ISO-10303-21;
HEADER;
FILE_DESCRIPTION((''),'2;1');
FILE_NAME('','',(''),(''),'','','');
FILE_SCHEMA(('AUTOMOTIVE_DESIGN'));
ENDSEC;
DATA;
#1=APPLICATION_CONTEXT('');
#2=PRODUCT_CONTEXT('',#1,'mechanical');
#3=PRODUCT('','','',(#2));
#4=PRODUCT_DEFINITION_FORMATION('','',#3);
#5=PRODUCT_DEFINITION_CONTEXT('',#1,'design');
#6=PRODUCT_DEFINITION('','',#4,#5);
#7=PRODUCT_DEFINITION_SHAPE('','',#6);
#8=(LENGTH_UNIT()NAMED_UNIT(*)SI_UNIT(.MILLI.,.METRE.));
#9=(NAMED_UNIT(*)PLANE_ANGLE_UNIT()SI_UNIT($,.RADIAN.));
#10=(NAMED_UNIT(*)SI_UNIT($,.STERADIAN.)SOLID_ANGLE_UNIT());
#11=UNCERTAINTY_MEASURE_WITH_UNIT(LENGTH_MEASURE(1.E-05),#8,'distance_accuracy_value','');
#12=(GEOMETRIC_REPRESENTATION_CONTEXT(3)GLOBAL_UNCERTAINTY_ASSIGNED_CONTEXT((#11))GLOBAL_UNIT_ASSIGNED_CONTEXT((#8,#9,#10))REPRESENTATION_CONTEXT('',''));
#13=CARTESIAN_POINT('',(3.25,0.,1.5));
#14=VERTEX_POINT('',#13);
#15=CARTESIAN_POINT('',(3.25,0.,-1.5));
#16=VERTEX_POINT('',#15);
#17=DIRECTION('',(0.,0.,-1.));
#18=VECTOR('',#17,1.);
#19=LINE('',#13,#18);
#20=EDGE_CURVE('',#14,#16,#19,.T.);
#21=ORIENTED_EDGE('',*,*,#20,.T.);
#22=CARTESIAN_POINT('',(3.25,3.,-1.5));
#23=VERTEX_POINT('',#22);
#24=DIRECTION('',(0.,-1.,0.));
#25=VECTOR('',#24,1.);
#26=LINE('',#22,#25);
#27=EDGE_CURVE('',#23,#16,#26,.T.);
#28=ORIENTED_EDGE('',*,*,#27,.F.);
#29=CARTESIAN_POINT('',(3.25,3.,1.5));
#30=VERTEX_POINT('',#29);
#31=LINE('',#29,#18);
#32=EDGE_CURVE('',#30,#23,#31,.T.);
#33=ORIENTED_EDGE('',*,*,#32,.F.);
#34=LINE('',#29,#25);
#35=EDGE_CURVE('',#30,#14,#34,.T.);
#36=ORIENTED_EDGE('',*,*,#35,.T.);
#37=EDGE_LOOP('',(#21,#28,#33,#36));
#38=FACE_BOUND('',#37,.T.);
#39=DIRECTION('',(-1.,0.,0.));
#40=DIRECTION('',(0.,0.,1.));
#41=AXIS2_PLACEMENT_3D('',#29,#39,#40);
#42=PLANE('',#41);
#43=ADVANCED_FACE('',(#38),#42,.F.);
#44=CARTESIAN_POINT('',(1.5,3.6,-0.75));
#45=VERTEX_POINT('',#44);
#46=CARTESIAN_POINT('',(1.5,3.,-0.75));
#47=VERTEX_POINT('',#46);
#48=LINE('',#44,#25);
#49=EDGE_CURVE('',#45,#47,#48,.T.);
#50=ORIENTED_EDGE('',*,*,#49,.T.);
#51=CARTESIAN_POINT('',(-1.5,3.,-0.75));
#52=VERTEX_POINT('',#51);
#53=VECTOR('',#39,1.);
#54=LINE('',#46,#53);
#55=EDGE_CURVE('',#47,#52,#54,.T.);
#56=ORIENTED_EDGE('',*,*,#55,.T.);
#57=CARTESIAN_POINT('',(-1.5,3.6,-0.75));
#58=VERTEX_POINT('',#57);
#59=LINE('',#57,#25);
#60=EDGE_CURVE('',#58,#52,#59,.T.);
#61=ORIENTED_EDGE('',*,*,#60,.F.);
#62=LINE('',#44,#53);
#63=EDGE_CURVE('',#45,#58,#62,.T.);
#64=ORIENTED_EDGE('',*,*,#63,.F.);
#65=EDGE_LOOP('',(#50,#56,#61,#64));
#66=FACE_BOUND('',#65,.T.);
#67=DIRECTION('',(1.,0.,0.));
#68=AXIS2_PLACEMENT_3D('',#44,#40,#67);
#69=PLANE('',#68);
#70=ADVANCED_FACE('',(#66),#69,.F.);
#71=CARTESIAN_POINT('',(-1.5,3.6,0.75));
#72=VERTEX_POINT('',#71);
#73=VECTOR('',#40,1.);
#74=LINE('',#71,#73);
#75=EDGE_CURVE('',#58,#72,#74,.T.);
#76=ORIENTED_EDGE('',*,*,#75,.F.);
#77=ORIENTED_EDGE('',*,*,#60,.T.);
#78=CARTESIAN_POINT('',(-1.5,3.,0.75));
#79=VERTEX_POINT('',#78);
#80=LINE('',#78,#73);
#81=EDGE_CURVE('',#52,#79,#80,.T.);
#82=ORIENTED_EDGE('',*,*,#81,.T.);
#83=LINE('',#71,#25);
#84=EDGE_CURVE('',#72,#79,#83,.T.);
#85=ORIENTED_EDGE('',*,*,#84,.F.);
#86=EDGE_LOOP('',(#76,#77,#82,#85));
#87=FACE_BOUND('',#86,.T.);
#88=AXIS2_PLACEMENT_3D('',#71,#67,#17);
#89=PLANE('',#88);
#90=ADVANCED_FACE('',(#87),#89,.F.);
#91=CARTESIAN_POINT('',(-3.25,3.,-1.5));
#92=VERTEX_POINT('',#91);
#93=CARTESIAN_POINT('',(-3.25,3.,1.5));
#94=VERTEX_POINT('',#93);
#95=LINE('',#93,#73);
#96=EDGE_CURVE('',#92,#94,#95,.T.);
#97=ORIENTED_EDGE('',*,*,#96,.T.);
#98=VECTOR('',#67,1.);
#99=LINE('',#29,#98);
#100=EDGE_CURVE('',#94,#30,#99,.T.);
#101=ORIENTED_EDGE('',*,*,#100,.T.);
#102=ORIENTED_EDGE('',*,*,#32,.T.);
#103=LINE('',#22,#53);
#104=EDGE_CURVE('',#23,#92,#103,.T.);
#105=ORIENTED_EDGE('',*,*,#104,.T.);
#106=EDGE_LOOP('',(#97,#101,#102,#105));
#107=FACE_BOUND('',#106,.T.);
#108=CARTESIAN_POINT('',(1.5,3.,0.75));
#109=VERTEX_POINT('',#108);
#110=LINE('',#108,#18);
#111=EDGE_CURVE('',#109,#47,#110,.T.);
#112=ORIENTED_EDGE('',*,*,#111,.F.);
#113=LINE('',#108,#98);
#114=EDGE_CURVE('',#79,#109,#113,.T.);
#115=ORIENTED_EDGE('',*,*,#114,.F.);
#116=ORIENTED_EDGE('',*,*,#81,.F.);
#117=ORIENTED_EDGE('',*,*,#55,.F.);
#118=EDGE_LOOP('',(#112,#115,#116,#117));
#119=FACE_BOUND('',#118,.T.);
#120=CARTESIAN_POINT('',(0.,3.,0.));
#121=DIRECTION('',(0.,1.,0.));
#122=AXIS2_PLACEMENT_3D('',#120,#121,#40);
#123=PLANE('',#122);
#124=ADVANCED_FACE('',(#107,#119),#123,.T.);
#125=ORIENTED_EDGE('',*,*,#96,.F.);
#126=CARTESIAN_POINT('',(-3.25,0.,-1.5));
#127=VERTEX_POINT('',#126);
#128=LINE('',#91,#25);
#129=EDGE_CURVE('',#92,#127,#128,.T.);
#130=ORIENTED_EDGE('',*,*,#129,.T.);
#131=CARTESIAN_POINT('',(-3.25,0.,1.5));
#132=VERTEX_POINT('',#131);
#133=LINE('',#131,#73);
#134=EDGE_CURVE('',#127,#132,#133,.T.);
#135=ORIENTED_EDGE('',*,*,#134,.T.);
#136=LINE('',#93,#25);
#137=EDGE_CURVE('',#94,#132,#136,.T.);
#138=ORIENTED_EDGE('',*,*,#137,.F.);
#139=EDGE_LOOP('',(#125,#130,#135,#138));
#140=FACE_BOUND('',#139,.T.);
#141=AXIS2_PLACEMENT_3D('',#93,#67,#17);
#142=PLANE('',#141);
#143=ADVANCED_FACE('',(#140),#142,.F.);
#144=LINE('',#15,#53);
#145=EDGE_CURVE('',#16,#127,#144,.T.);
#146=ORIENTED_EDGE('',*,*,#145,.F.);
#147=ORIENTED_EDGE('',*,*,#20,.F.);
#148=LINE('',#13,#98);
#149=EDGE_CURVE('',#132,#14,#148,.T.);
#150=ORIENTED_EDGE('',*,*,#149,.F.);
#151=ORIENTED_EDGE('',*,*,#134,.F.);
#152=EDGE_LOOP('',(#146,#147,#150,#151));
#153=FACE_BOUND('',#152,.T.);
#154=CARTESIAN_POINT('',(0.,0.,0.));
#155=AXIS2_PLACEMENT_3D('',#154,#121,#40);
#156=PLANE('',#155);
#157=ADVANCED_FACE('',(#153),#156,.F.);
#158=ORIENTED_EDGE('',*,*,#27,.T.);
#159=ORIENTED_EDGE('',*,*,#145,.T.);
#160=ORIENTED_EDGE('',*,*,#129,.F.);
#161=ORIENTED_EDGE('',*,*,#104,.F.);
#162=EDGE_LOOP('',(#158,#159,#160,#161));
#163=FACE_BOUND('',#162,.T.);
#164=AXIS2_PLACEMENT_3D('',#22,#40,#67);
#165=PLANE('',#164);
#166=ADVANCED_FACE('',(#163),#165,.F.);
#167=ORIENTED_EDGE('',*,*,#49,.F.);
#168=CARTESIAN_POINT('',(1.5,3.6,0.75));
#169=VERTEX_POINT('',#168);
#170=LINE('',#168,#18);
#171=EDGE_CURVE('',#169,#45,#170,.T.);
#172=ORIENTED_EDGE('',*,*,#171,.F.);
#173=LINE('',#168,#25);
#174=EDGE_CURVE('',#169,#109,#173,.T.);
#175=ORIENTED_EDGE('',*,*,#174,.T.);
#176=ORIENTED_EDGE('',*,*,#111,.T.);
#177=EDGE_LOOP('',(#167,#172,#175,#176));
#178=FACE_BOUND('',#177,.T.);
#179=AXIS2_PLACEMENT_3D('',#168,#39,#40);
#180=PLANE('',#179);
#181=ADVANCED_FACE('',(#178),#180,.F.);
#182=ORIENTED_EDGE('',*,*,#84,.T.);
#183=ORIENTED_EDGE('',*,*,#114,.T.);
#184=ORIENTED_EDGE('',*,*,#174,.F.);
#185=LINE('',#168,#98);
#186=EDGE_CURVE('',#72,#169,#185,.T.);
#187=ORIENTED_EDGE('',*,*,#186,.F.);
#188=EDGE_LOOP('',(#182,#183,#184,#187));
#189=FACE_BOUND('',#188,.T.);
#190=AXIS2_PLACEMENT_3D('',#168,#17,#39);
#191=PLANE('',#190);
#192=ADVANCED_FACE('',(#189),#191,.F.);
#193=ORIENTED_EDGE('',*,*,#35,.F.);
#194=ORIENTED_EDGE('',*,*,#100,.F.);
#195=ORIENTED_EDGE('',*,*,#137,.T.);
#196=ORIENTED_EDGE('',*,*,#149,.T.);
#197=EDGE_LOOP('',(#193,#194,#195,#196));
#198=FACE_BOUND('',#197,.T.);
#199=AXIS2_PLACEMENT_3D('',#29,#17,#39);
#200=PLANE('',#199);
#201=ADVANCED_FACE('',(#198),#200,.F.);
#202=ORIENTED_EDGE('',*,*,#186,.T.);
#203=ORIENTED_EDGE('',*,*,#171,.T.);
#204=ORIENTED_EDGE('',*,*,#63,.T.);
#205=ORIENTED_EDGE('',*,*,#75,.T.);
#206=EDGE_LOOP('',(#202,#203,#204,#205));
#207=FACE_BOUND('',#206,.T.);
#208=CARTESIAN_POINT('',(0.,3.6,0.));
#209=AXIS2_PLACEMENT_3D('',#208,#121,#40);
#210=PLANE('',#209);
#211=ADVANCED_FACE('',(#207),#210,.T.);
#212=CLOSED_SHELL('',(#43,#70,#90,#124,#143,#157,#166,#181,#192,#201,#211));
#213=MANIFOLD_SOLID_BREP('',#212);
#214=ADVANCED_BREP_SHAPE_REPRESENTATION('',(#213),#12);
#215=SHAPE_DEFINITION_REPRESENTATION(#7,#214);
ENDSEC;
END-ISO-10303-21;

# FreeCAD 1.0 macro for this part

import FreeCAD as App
import Part
import Sketcher

V = App.Vector
Q = App.Units.Quantity


def add_polygon(sketch, points):
    """Adds a closed chain of lines whose ends are joined by coincident constraints."""
    first, n = sketch.GeometryCount, len(points)
    for a, b in zip(points, points[1:] + points[:1]):
        sketch.addGeometry(Part.LineSegment(App.Vector(*a, 0), App.Vector(*b, 0)), False)
    for i in range(n):
        sketch.addConstraint(Sketcher.Constraint("Coincident", first + i, 2, first + (i + 1) % n, 1))

doc = App.newDocument("Part")
params = doc.addObject("Spreadsheet::Sheet", "Params")
for row, (alias, value) in enumerate([
    ("sketch1_height", "3 mm"),
    ("sketch1_width", "6.5 mm"),
    ("pad1_length", "3 mm"),
    ("sketch2_width", "3 mm"),
    ("sketch2_height", "1.5 mm"),
    ("pad2_length", "0.6 mm"),
], start=1):
    params.set(f"A{row}", alias)
    params.set(f"B{row}", "=" + value)
    params.setAlias(f"B{row}", alias)

body = doc.addObject("PartDesign::Body", "Body")

sketch1 = body.newObject("Sketcher::SketchObject", "Sketch")
sketch1.AttachmentSupport = (doc.getObject("XZ_Plane"), [""])
sketch1.MapMode = "FlatFace"
add_polygon(sketch1, [(-3.2, -1.5), (-3.2, 1.5), (3.2, 1.5), (3.2, -1.5)])
sketch1.addConstraint(Sketcher.Constraint("Vertical", 0))
sketch1.addConstraint(Sketcher.Constraint("Horizontal", 1))
sketch1.addConstraint(Sketcher.Constraint("Vertical", 2))
sketch1.addConstraint(Sketcher.Constraint("Horizontal", 3))
sketch1.addConstraint(Sketcher.Constraint("Symmetric", 0, 2, 2, 2, -1, 1))
sketch1.addConstraint(Sketcher.Constraint("DistanceY", 0, 1, 0, 2, Q("3 mm")))
sketch1.addConstraint(Sketcher.Constraint("DistanceX", 1, 1, 1, 2, Q("6.5 mm")))
sketch1.setExpression("Constraints[9]", "Params.sketch1_height")
sketch1.setExpression("Constraints[10]", "Params.sketch1_width")
pad1 = body.newObject("PartDesign::Pad", "Pad")
pad1.Profile = sketch1
pad1.setExpression("Length", "Params.pad1_length")
pad1.Reversed = True

sketch2 = body.newObject("Sketcher::SketchObject", "Sketch001")
sketch2.AttachmentSupport = (doc.getObject("XZ_Plane"), [""])
sketch2.MapMode = "FlatFace"
sketch2.AttachmentOffset = App.Placement(V(0, 0, -3), App.Rotation())
add_polygon(sketch2, [(-1.5, -0.8), (-1.5, 0.8), (1.5, 0.8), (1.5, -0.8)])
sketch2.addConstraint(Sketcher.Constraint("Vertical", 0))
sketch2.addConstraint(Sketcher.Constraint("Horizontal", 1))
sketch2.addConstraint(Sketcher.Constraint("Vertical", 2))
sketch2.addConstraint(Sketcher.Constraint("Horizontal", 3))
sketch2.addConstraint(Sketcher.Constraint("Symmetric", 0, 2, 2, 2, -1, 1))
sketch2.addConstraint(Sketcher.Constraint("DistanceX", 1, 1, 1, 2, Q("3 mm")))
sketch2.addConstraint(Sketcher.Constraint("DistanceY", 0, 1, 0, 2, Q("1.5 mm")))
sketch2.setExpression("Constraints[9]", "Params.sketch2_width")
sketch2.setExpression("Constraints[10]", "Params.sketch2_height")
pad2 = body.newObject("PartDesign::Pad", "Pad001")
pad2.Profile = sketch2
pad2.setExpression("Length", "Params.pad2_length")
pad2.Reversed = True

doc.recompute()
